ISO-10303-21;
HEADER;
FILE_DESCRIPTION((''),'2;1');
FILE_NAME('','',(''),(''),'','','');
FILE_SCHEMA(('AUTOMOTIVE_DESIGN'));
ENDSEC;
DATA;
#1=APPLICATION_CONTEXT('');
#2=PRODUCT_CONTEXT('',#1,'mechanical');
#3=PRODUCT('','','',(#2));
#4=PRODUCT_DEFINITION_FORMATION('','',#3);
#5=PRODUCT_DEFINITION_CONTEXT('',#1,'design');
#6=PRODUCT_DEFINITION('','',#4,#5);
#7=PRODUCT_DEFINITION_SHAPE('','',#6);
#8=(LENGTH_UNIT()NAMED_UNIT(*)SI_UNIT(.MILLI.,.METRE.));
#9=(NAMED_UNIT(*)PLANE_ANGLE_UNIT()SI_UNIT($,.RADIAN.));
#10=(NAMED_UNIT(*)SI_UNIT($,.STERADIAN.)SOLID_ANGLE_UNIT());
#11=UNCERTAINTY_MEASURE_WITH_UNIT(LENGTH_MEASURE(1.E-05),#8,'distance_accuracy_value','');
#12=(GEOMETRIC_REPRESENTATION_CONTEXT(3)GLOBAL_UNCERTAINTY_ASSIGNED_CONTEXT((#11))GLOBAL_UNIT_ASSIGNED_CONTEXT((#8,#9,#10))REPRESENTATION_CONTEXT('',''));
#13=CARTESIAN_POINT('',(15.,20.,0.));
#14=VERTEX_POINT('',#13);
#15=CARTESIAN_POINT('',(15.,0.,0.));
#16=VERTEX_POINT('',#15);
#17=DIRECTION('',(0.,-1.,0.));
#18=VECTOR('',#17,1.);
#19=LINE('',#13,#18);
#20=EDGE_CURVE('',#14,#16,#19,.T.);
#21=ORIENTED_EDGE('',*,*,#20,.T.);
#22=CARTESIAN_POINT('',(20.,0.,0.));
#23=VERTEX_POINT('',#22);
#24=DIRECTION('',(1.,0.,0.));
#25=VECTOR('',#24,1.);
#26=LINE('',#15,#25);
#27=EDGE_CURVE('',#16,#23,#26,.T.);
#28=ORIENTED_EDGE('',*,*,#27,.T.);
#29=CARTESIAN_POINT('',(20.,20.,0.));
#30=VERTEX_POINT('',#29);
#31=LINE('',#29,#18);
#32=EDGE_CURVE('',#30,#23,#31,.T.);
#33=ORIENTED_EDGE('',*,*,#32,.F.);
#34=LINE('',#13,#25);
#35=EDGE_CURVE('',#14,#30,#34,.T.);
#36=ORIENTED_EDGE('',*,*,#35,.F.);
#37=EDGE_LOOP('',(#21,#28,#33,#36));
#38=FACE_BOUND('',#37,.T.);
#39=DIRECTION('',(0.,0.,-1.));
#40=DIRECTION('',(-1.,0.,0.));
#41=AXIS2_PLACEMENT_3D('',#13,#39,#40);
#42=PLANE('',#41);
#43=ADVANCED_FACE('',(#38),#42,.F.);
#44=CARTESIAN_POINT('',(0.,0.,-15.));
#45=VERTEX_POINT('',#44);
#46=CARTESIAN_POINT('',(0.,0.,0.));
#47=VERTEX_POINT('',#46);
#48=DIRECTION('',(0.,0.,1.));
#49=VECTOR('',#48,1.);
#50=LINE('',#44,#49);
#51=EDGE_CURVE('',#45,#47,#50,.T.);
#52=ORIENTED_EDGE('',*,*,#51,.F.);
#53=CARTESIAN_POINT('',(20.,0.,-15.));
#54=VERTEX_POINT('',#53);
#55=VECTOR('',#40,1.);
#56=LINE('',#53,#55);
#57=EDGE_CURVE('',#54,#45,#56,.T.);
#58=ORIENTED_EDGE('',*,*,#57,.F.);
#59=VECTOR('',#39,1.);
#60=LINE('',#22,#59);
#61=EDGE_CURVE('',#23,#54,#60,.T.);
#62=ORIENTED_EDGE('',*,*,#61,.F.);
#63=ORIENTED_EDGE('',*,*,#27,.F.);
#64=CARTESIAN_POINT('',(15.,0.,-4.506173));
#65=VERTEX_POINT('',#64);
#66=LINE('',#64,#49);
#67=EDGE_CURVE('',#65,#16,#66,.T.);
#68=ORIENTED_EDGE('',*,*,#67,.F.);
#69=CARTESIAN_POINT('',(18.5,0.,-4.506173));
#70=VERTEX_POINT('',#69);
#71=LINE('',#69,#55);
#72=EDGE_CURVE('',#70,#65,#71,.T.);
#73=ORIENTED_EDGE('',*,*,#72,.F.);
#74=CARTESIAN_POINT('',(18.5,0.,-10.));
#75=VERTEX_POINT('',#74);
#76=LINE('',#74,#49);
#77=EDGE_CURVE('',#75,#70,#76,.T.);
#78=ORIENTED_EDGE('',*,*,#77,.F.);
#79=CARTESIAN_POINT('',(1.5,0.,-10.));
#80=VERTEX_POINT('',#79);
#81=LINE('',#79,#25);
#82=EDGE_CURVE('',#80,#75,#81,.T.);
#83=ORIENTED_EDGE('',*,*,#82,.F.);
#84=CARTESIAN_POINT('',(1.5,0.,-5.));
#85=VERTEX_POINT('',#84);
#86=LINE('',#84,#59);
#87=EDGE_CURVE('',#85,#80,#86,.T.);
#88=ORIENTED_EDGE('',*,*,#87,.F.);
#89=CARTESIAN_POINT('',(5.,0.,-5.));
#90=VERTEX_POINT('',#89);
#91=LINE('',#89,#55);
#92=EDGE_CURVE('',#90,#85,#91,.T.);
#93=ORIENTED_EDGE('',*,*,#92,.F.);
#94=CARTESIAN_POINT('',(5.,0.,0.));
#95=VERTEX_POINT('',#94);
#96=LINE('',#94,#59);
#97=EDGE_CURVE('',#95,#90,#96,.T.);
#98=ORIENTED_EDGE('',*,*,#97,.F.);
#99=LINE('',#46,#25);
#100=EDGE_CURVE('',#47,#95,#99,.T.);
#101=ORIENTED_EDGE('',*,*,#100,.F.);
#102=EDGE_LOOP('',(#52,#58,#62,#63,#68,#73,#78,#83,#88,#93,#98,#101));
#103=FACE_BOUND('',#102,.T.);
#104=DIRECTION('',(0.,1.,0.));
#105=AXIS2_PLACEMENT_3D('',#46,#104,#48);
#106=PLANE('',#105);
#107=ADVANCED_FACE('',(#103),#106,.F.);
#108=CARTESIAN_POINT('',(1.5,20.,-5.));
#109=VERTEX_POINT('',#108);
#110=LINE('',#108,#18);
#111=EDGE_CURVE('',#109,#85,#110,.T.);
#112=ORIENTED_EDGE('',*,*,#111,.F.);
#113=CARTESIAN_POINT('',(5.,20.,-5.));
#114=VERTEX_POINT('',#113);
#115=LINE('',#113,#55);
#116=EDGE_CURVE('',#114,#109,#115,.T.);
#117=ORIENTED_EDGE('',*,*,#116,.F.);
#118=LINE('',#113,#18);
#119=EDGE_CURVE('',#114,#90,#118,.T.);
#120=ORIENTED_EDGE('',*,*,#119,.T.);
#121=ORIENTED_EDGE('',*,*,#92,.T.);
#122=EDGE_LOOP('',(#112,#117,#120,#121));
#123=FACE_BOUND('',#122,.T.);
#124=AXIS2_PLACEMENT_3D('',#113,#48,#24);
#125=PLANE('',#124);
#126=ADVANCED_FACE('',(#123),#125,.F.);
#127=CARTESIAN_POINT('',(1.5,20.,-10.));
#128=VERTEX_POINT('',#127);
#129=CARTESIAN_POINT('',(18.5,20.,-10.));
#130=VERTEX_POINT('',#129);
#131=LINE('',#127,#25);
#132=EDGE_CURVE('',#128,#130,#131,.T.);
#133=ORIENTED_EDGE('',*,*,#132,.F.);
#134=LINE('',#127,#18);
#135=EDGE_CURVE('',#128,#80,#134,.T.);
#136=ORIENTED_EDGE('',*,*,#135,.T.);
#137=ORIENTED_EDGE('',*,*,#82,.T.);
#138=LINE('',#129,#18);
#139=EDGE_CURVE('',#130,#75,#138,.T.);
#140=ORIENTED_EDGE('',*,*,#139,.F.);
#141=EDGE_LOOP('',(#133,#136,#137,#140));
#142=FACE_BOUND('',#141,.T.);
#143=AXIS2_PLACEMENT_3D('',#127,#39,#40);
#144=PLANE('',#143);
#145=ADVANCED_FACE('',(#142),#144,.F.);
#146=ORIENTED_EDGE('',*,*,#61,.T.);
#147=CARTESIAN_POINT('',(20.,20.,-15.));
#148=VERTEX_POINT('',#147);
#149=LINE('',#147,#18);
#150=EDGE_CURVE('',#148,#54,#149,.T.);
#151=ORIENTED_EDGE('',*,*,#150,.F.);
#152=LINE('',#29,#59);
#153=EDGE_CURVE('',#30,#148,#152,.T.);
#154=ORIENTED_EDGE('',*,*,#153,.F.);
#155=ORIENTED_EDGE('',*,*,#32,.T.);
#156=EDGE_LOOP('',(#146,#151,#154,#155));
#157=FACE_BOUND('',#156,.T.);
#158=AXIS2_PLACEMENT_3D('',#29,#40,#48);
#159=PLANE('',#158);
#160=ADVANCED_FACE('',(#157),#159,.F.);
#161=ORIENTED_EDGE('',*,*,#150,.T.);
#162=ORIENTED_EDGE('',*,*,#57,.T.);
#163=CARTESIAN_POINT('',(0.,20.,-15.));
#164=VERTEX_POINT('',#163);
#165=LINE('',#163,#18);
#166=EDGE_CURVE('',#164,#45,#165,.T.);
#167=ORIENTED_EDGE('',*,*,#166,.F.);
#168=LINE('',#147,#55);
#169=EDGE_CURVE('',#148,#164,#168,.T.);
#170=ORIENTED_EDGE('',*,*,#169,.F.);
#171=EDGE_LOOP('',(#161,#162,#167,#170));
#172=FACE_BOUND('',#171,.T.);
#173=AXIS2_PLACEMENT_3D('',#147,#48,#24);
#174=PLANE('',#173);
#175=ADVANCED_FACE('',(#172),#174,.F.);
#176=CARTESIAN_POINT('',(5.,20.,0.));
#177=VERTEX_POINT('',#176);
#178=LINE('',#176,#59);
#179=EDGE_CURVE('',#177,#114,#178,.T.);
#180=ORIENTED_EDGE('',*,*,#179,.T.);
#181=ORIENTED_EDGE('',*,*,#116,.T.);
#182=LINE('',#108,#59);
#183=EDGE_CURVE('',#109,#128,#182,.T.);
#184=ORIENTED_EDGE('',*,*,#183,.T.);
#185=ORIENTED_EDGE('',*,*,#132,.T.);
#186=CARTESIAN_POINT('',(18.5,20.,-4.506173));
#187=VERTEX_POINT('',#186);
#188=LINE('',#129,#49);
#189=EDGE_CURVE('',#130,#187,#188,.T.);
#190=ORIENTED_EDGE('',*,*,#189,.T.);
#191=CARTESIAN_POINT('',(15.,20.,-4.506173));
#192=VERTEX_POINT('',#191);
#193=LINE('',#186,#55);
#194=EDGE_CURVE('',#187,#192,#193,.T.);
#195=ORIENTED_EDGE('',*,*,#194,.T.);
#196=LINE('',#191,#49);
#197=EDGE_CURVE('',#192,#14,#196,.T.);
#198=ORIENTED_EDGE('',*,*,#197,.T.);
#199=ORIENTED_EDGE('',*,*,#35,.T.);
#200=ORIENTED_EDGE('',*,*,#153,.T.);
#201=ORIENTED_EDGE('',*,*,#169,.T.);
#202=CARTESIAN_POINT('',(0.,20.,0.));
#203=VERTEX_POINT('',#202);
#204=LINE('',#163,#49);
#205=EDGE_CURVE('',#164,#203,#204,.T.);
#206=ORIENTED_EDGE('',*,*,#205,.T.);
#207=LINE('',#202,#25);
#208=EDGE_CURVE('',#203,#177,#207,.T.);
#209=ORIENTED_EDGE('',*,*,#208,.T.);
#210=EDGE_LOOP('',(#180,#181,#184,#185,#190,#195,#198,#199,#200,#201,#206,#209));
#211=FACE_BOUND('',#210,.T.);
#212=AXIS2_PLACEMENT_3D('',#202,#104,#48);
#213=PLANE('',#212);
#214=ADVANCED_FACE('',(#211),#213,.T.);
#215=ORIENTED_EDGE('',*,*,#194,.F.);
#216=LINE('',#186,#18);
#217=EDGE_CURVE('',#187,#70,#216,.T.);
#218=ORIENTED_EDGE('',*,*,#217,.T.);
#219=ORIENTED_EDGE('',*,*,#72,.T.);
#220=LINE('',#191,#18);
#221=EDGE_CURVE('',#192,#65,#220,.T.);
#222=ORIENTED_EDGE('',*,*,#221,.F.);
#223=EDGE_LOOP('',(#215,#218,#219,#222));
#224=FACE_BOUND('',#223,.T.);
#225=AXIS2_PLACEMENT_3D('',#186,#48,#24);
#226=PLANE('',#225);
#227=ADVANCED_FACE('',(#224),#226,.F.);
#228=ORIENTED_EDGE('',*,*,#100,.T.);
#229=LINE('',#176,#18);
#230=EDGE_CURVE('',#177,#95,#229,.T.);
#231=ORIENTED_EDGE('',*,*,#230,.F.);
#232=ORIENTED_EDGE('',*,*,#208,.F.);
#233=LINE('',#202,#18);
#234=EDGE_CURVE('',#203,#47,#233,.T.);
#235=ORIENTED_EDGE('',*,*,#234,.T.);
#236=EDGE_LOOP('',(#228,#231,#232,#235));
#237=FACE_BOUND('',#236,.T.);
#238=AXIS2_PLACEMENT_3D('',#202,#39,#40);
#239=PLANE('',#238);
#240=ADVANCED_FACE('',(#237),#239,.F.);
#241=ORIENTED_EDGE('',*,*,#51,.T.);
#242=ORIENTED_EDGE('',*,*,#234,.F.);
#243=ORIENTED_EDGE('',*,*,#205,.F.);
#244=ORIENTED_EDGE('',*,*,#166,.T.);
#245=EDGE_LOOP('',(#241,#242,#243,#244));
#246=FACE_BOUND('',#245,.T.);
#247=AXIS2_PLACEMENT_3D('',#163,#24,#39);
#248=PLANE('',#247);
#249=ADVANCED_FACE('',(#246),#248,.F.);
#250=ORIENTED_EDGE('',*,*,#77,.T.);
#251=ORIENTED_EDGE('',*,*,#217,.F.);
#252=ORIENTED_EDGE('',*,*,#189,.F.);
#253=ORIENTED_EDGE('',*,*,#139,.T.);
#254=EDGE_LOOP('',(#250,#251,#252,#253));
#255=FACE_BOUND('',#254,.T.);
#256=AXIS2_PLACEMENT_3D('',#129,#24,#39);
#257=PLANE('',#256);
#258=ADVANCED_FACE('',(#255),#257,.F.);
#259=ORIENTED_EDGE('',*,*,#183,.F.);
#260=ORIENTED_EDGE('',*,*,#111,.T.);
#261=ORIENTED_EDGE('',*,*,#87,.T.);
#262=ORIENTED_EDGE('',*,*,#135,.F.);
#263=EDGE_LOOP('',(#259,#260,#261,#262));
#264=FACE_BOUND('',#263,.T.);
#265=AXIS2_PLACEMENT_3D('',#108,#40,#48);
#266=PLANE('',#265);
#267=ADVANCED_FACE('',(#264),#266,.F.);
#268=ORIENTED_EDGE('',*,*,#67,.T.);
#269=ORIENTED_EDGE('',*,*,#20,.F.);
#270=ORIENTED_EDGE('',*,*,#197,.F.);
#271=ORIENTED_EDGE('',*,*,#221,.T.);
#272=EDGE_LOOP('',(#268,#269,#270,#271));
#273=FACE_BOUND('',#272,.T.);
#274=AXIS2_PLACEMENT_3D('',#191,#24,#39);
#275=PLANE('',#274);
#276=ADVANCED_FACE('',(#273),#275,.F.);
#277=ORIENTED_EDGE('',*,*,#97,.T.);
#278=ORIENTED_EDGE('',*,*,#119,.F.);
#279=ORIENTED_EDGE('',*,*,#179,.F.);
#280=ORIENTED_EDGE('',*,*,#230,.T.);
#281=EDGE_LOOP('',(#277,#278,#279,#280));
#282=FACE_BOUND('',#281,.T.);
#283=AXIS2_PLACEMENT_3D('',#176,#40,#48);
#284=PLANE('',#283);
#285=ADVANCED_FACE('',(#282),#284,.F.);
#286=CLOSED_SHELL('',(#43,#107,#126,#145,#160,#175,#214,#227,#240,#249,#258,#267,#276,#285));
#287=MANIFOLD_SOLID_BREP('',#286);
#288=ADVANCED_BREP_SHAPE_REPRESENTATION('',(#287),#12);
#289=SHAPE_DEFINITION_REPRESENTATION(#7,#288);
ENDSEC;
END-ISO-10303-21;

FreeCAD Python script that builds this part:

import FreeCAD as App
import Part
import Sketcher

V = App.Vector
Q = App.Units.Quantity

doc = App.newDocument("Part")
body = doc.addObject("PartDesign::Body", "Body")

# Sketch on XZ plane
sketch1 = doc.addObject("Sketcher::SketchObject", "Sketch")
body.addObject(sketch1)
sketch1.AttachmentSupport = (doc.XZ_Plane, [""])
sketch1.MapMode = "FlatFace"
sketch1.addGeometry([
    Part.LineSegment(V(0, 0, 0), V(5, 0, 0)),  # 0
    Part.LineSegment(V(5, 0, 0), V(5, -5, 0)),  # 1
    Part.LineSegment(V(5, -5, 0), V(1.5, -5, 0)),  # 2
    Part.LineSegment(V(1.5, -5, 0), V(1.5, -10, 0)),  # 3
    Part.LineSegment(V(1.5, -10, 0), V(18.5, -10, 0)),  # 4
    Part.LineSegment(V(18.5, -10, 0), V(18.5, -4.506173, 0)),  # 5
    Part.LineSegment(V(18.5, -4.506173, 0), V(15, -4.506173, 0)),  # 6
    Part.LineSegment(V(15, -4.506173, 0), V(15, 0, 0)),  # 7
    Part.LineSegment(V(15, 0, 0), V(20, 0, 0)),  # 8
    Part.LineSegment(V(20, 0, 0), V(20, -15, 0)),  # 9
    Part.LineSegment(V(20, -15, 0), V(0, -15, 0)),  # 10
    Part.LineSegment(V(0, -15, 0), V(0, 0, 0)),  # 11
], False)
sketch1.addConstraint([
    Sketcher.Constraint("Coincident", 0, 2, 1, 1),
    Sketcher.Constraint("Coincident", 1, 2, 2, 1),
    Sketcher.Constraint("Coincident", 2, 2, 3, 1),
    Sketcher.Constraint("Coincident", 3, 2, 4, 1),
    Sketcher.Constraint("Coincident", 4, 2, 5, 1),
    Sketcher.Constraint("Coincident", 5, 2, 6, 1),
    Sketcher.Constraint("Coincident", 6, 2, 7, 1),
    Sketcher.Constraint("Coincident", 7, 2, 8, 1),
    Sketcher.Constraint("Coincident", 8, 2, 9, 1),
    Sketcher.Constraint("Coincident", 9, 2, 10, 1),
    Sketcher.Constraint("Coincident", 10, 2, 11, 1),
    Sketcher.Constraint("Coincident", 11, 2, 0, 1),
    Sketcher.Constraint("Horizontal", 0),
    Sketcher.Constraint("Vertical", 1),
    Sketcher.Constraint("Horizontal", 2),
    Sketcher.Constraint("Vertical", 3),
    Sketcher.Constraint("Horizontal", 4),
    Sketcher.Constraint("Vertical", 5),
    Sketcher.Constraint("Horizontal", 6),
    Sketcher.Constraint("Vertical", 7),
    Sketcher.Constraint("Horizontal", 8),
    Sketcher.Constraint("Vertical", 9),
    Sketcher.Constraint("Horizontal", 10),
    Sketcher.Constraint("Vertical", 11),
    Sketcher.Constraint("Coincident", 11, 2, -1, 1),
    Sketcher.Constraint("PointOnObject", 7, 2, -1),
    Sketcher.Constraint("Equal", 2, 6),
    Sketcher.Constraint("Equal", 0, 8),
    Sketcher.Constraint("Equal", 8, 1),
    Sketcher.Constraint("Equal", 1, 3),
    Sketcher.Constraint("DistanceX", 0, 1, 0, 2, Q("5 mm")),
    Sketcher.Constraint("DistanceX", 4, 1, 4, 2, Q("17 mm")),
    Sketcher.Constraint("DistanceX", 10, 2, 10, 1, Q("20 mm")),
    Sketcher.Constraint("DistanceY", 9, 2, 9, 1, Q("15 mm")),
    Sketcher.Constraint("DistanceY", 5, 1, 5, 2, Q("5.493827 mm")),
])
pad1 = doc.addObject("PartDesign::Pad", "Pad")
body.addObject(pad1)
pad1.Profile = sketch1
pad1.Length = 20
pad1.Reversed = True

doc.recompute()
